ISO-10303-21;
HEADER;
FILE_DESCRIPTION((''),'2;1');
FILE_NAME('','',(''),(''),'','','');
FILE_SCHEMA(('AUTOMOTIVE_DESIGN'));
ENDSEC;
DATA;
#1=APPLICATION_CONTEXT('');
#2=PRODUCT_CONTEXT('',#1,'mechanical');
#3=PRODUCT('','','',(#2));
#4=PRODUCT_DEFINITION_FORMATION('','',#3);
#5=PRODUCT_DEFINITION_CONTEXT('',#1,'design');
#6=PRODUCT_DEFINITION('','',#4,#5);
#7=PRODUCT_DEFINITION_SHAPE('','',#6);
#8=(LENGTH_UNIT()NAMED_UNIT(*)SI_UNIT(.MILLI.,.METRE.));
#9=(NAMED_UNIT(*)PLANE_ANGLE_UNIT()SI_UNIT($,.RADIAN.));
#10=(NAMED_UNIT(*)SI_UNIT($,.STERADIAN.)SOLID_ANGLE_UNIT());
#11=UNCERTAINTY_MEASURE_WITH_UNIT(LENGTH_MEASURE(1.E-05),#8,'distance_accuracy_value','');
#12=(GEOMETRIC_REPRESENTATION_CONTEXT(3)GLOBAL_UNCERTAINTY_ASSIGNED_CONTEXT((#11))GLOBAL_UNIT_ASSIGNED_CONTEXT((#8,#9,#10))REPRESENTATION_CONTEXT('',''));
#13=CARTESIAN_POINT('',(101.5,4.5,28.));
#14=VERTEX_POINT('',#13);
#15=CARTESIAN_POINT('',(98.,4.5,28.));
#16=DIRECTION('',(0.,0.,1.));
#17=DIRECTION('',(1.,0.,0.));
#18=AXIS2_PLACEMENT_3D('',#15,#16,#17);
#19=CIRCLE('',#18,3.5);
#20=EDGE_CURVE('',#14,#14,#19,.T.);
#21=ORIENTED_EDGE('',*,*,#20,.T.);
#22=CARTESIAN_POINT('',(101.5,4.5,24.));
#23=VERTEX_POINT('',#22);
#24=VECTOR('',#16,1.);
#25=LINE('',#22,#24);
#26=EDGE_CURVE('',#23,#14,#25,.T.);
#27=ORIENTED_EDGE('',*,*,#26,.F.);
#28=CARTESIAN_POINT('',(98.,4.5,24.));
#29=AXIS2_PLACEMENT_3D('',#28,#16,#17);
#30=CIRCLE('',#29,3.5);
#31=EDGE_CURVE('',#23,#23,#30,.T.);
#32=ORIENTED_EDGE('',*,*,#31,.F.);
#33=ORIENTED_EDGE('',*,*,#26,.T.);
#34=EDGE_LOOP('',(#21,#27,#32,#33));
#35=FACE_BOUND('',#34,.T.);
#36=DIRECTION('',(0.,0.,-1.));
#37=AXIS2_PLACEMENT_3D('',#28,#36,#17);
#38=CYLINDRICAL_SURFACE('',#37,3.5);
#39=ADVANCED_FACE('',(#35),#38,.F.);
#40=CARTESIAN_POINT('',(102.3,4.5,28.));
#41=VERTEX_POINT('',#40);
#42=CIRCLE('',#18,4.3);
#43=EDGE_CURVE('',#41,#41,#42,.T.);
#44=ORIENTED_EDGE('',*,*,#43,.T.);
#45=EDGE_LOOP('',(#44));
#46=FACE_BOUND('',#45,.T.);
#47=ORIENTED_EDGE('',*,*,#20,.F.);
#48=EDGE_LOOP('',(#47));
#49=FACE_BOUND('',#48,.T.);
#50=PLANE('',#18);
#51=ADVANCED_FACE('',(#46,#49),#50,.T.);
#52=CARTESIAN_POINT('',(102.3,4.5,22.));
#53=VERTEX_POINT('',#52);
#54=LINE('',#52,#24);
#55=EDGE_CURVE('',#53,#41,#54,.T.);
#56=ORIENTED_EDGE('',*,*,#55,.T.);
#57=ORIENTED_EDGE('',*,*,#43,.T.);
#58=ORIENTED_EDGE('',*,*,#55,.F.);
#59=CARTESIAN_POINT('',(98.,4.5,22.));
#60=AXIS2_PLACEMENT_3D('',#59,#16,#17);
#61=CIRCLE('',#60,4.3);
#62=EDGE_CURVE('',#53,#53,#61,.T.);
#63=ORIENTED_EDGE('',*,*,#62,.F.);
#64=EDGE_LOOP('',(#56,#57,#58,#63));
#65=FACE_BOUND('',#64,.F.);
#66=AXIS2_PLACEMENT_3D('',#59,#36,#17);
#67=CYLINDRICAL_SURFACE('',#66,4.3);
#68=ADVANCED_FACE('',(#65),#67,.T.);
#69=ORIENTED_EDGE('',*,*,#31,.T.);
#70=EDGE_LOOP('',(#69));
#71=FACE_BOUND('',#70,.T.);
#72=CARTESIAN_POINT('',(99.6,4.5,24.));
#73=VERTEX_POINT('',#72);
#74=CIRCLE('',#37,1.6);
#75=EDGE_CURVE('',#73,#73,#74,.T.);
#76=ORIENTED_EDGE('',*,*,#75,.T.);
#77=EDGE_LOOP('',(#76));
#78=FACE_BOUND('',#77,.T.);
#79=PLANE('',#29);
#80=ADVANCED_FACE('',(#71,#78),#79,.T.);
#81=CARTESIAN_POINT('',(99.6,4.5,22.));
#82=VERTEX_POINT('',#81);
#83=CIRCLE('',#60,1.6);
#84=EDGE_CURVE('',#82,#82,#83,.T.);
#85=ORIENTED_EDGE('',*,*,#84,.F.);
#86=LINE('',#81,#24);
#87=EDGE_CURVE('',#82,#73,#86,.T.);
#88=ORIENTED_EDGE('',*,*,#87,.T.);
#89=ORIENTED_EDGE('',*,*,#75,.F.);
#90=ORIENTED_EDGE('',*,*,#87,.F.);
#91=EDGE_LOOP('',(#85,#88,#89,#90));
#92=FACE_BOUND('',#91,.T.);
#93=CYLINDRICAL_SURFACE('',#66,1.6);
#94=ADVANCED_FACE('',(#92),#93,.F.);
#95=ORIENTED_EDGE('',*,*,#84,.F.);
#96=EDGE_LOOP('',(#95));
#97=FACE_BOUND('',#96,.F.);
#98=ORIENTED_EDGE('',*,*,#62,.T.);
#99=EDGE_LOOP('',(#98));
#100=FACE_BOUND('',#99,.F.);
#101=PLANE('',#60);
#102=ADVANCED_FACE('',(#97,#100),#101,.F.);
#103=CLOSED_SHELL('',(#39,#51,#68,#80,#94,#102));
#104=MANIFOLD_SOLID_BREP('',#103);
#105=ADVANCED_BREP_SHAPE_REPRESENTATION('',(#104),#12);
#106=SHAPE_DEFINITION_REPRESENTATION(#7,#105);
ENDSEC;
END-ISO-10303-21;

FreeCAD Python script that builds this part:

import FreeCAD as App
import Part
import Sketcher
from FreeCAD import Vector
Q = App.Units.Quantity

doc = App.newDocument("Part")
params = doc.addObject("Spreadsheet::Sheet", "Params")
for row, (alias, value) in enumerate([
    ("sketch1_diameter", "3.2 mm"),
    ("pad1_length", "5 mm"),
    ("sketch2_diameter", "7 mm"),
    ("pad2_length", "4 mm"),
    ("sketch3_diameter", "8.6 mm"),
    ("pad3_length", "6 mm"),
], start=1):
    params.set(f"A{row}", alias)
    params.set(f"B{row}", "=" + value)
    params.setAlias(f"B{row}", alias)

body = doc.addObject("PartDesign::Body", "Body")

# Sketch on XY plane
sketch1 = doc.addObject("Sketcher::SketchObject", "Sketch")
body.addObject(sketch1)
sketch1.AttachmentSupport = (doc.XY_Plane, [""])
sketch1.MapMode = "FlatFace"
sketch1.AttachmentOffset = App.Placement(Vector(0, 0, 22), App.Rotation())
sketch1.addGeometry(Part.Circle(Vector(98, 4.5, 0), Vector(0, 0, 1), 1.6), False)
sketch1.addConstraint([
    Sketcher.Constraint("Diameter", 0, Q("3.2 mm")),
    Sketcher.Constraint("DistanceX", -1, 1, 0, 3, Q("98 mm")),
    Sketcher.Constraint("DistanceY", -1, 1, 0, 3, Q("4.5 mm")),
])
sketch1.setExpression("Constraints[0]", "Params.sketch1_diameter")
pad1 = doc.addObject("PartDesign::Pad", "Pad")
body.addObject(pad1)
pad1.Profile = sketch1
pad1.setExpression("Length", "Params.pad1_length")
body2 = doc.addObject("PartDesign::Body", "Body001")

# Sketch on XY plane
sketch2 = doc.addObject("Sketcher::SketchObject", "Sketch001")
body2.addObject(sketch2)
sketch2.AttachmentSupport = (doc.getObject("XY_Plane001"), [""])
sketch2.MapMode = "FlatFace"
sketch2.AttachmentOffset = App.Placement(Vector(0, 0, 24), App.Rotation())
sketch2.addGeometry(Part.Circle(Vector(98, 4.5, 0), Vector(0, 0, 1), 3.5), False)
sketch2.addConstraint([
    Sketcher.Constraint("Diameter", 0, Q("7 mm")),
    Sketcher.Constraint("DistanceX", -1, 1, 0, 3, Q("98 mm")),
    Sketcher.Constraint("DistanceY", -1, 1, 0, 3, Q("4.5 mm")),
])
sketch2.setExpression("Constraints[0]", "Params.sketch2_diameter")
pad2 = doc.addObject("PartDesign::Pad", "Pad001")
body2.addObject(pad2)
pad2.Profile = sketch2
pad2.setExpression("Length", "Params.pad2_length")
body3 = doc.addObject("PartDesign::Body", "Body002")

# Sketch on XY plane
sketch3 = doc.addObject("Sketcher::SketchObject", "Sketch002")
body3.addObject(sketch3)
sketch3.AttachmentSupport = (doc.getObject("XY_Plane002"), [""])
sketch3.MapMode = "FlatFace"
sketch3.AttachmentOffset = App.Placement(Vector(0, 0, 22), App.Rotation())
sketch3.addGeometry(Part.Circle(Vector(98, 4.5, 0), Vector(0, 0, 1), 4.3), False)
sketch3.addConstraint([
    Sketcher.Constraint("Diameter", 0, Q("8.6 mm")),
    Sketcher.Constraint("DistanceX", -1, 1, 0, 3, Q("98 mm")),
    Sketcher.Constraint("DistanceY", -1, 1, 0, 3, Q("4.5 mm")),
])
sketch3.setExpression("Constraints[0]", "Params.sketch3_diameter")
pad3 = doc.addObject("PartDesign::Pad", "Pad002")
body3.addObject(pad3)
pad3.Profile = sketch3
pad3.setExpression("Length", "Params.pad3_length")
doc.recompute()

boolean = doc.addObject("PartDesign::Boolean", "Boolean")
body3.addObject(boolean)
boolean.Type = "Cut"
boolean.addObjects([body2])
doc.recompute()

boolean2 = doc.addObject("PartDesign::Boolean", "Boolean001")
body3.addObject(boolean2)
boolean2.Type = "Cut"
boolean2.addObjects([body])

doc.recompute()
